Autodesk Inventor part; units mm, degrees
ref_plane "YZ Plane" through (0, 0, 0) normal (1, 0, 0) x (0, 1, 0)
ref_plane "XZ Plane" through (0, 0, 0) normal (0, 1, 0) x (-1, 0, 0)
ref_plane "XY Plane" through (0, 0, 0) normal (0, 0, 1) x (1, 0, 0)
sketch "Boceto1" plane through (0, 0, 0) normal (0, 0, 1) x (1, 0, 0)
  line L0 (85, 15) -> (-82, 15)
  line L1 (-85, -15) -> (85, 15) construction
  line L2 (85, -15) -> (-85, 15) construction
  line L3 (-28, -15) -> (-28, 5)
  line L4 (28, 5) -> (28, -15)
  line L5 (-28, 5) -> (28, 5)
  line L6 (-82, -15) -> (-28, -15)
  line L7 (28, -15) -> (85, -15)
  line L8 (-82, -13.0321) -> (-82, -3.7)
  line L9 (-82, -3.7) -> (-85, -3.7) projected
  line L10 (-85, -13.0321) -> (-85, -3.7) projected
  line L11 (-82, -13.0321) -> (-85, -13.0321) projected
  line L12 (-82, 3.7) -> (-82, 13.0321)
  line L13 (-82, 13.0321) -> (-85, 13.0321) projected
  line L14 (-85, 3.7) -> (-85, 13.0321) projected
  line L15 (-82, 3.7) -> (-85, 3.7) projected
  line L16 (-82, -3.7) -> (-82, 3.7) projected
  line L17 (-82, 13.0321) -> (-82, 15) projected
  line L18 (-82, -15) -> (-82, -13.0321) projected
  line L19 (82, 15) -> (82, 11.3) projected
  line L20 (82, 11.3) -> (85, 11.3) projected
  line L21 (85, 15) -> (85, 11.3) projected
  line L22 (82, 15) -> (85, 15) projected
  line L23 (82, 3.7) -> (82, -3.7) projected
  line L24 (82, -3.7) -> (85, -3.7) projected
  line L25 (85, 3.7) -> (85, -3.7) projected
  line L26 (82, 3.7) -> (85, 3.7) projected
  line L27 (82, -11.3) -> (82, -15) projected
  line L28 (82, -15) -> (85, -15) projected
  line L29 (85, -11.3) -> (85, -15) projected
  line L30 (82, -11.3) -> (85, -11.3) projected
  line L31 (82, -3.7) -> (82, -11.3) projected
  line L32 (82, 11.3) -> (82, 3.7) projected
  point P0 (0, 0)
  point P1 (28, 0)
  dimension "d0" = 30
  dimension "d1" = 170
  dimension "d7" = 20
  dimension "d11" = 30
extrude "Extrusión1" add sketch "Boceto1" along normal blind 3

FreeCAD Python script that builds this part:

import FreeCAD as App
import Part
import Sketcher
from FreeCAD import Vector
Q = App.Units.Quantity


def add_polygon(sketch, points):
    """Adds a closed chain of lines whose ends are joined by coincident constraints."""
    first, n = sketch.GeometryCount, len(points)
    for a, b in zip(points, points[1:] + points[:1]):
        sketch.addGeometry(Part.LineSegment(App.Vector(*a, 0), App.Vector(*b, 0)), False)
    for i in range(n):
        sketch.addConstraint(Sketcher.Constraint("Coincident", first + i, 2, first + (i + 1) % n, 1))

doc = App.newDocument("Part")
body = doc.addObject("PartDesign::Body", "Body")

# Sketch on XY plane
sketch1 = body.newObject("Sketcher::SketchObject", "Sketch")
sketch1.AttachmentSupport = (doc.getObject("XY_Plane"), [""])
sketch1.MapMode = "FlatFace"
add_polygon(sketch1, [(85, 11.3), (85, 15), (-82, 15), (-82, 13), (-85, 13), (-85, 3.7), (-82, 3.7), (-82, -3.7), (-85, -3.7), (-85, -13), (-82, -13), (-82, -15), (-28, -15), (-28, 5), (28, 5), (28, -15), (85, -15), (85, -11.3), (82, -11.3), (82, -3.7), (85, -3.7), (85, 3.7), (82, 3.7), (82, 11.3)])  # lines 0-23
sketch1.addConstraint(Sketcher.Constraint("Vertical", 0))
sketch1.addConstraint(Sketcher.Constraint("Horizontal", 1))
sketch1.addConstraint(Sketcher.Constraint("Vertical", 2))
sketch1.addConstraint(Sketcher.Constraint("Horizontal", 3))
sketch1.addConstraint(Sketcher.Constraint("Vertical", 4))
sketch1.addConstraint(Sketcher.Constraint("Horizontal", 5))
sketch1.addConstraint(Sketcher.Constraint("Vertical", 6))
sketch1.addConstraint(Sketcher.Constraint("Horizontal", 7))
sketch1.addConstraint(Sketcher.Constraint("Vertical", 8))
sketch1.addConstraint(Sketcher.Constraint("Horizontal", 9))
sketch1.addConstraint(Sketcher.Constraint("Vertical", 10))
sketch1.addConstraint(Sketcher.Constraint("Horizontal", 11))
sketch1.addConstraint(Sketcher.Constraint("Vertical", 12))
sketch1.addConstraint(Sketcher.Constraint("Horizontal", 13))
sketch1.addConstraint(Sketcher.Constraint("Vertical", 14))
sketch1.addConstraint(Sketcher.Constraint("Horizontal", 15))
sketch1.addConstraint(Sketcher.Constraint("Vertical", 16))
sketch1.addConstraint(Sketcher.Constraint("Horizontal", 17))
sketch1.addConstraint(Sketcher.Constraint("Vertical", 18))
sketch1.addConstraint(Sketcher.Constraint("Horizontal", 19))
sketch1.addConstraint(Sketcher.Constraint("Vertical", 20))
sketch1.addConstraint(Sketcher.Constraint("Horizontal", 21))
sketch1.addConstraint(Sketcher.Constraint("Vertical", 22))
sketch1.addConstraint(Sketcher.Constraint("Horizontal", 23))
sketch1.addConstraint(Sketcher.Constraint("Symmetric", 5, 2, 18, 2, -1, 1))
sketch1.addConstraint(Sketcher.Constraint("Symmetric", 7, 2, 20, 2, -1, 1))
sketch1.addConstraint(Sketcher.Constraint("Symmetric", 11, 2, 14, 2, -2))
sketch1.addConstraint(Sketcher.Constraint("Symmetric", 4, 2, 20, 2, -2))
sketch1.addConstraint(Sketcher.Constraint("Symmetric", 2, 2, 9, 2, -1))
sketch1.addConstraint(Sketcher.Constraint("Symmetric", 0, 2, 15, 2, -1))
sketch1.addConstraint(Sketcher.Constraint("Symmetric", 17, 2, 22, 2, -1))
sketch1.addConstraint(Sketcher.Constraint("Vertical", 2, 2, 5, 2))
sketch1.addConstraint(Sketcher.Constraint("Vertical", 16, 2, 19, 2))
sketch1.addConstraint(Sketcher.Constraint("DistanceY", 12, 1, 12, 2, Q("20 mm")))
sketch1.addConstraint(Sketcher.Constraint("DistanceX", 3, 2, 0, 2, Q("170 mm")))
sketch1.addConstraint(Sketcher.Constraint("DistanceY", 14, 2, 0, 2, Q("30 mm")))
sketch1.addConstraint(Sketcher.Constraint("DistanceX", 1, 2, 1, 1, Q("167 mm")))
sketch1.addConstraint(Sketcher.Constraint("DistanceX", 11, 1, 11, 2, Q("54 mm")))
sketch1.addConstraint(Sketcher.Constraint("DistanceY", 0, 1, 0, 2, Q("3.7 mm")))
sketch1.addConstraint(Sketcher.Constraint("DistanceY", 6, 2, 6, 1, Q("7.4 mm")))
sketch1.addConstraint(Sketcher.Constraint("DistanceY", 2, 2, 2, 1, Q("1.968 mm")))
pad1 = body.newObject("PartDesign::Pad", "Pad")
pad1.Profile = sketch1
pad1.Length = 3

doc.recompute()
